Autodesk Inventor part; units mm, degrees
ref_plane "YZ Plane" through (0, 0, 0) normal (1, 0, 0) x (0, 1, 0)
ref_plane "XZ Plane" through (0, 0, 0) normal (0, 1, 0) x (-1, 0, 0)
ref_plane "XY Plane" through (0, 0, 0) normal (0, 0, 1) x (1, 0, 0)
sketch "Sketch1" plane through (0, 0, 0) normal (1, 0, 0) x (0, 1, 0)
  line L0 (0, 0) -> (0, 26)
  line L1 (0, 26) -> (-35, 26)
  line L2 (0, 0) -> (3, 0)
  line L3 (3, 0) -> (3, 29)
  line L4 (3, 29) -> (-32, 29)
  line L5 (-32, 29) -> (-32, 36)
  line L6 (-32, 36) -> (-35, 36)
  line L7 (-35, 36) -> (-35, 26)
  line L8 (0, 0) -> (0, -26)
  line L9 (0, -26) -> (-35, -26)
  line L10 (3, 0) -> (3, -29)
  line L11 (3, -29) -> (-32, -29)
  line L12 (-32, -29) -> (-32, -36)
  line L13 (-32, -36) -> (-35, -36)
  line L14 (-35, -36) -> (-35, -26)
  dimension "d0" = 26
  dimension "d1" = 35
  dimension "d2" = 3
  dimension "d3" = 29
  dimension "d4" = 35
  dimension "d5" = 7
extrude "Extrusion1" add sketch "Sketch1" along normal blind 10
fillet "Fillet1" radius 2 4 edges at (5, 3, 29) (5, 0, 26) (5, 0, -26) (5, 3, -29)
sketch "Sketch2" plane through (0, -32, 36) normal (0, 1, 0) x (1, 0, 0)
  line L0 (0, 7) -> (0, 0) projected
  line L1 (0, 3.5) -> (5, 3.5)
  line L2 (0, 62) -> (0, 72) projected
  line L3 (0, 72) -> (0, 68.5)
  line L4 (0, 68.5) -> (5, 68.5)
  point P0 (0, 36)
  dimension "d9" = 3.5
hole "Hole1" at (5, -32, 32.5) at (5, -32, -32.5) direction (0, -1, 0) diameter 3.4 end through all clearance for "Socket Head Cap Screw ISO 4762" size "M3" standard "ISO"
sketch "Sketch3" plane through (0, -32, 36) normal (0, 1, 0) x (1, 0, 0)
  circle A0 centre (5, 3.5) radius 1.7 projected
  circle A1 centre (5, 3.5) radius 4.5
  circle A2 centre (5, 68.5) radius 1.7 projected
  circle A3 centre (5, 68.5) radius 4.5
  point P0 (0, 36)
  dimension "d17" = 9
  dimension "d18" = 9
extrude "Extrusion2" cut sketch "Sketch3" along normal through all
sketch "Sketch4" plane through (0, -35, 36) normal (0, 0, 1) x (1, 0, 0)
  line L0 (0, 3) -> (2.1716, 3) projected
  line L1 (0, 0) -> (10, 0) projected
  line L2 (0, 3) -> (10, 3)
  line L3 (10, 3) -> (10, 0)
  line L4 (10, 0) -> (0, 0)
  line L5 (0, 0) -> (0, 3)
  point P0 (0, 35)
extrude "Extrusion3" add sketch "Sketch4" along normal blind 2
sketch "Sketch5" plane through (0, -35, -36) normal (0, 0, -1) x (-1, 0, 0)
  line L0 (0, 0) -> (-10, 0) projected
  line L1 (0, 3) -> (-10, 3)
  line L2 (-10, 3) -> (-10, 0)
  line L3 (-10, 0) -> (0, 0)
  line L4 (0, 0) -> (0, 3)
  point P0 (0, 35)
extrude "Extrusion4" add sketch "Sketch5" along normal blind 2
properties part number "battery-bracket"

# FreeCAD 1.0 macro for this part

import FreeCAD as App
import Part
import Sketcher
from FreeCAD import Vector
Q = App.Units.Quantity


def edges_at(feature, points):
    """Names of the edges that pass closest to the given points."""
    edges = feature.Shape.Edges
    near = lambda p: min(range(len(edges)), key=lambda i: edges[i].distToShape(Part.Vertex(*p))[0])
    return sorted({f"Edge{near(p) + 1}" for p in points})


def add_polygon(sketch, points):
    """Adds a closed chain of lines whose ends are joined by coincident constraints."""
    first, n = sketch.GeometryCount, len(points)
    for a, b in zip(points, points[1:] + points[:1]):
        sketch.addGeometry(Part.LineSegment(App.Vector(*a, 0), App.Vector(*b, 0)), False)
    for i in range(n):
        sketch.addConstraint(Sketcher.Constraint("Coincident", first + i, 2, first + (i + 1) % n, 1))

doc = App.newDocument("Part")
body = doc.addObject("PartDesign::Body", "Body")

sketch1 = body.newObject("Sketcher::SketchObject", "Sketch")
sketch1.AttachmentSupport = (doc.getObject("YZ_Plane"), [""])
sketch1.MapMode = "FlatFace"
add_polygon(sketch1, [(0, 26), (0, -26), (-35, -26), (-35, -36), (-32, -36), (-32, -29), (3, -29), (3, 29), (-32, 29), (-32, 36), (-35, 36), (-35, 26)])
sketch1.addConstraint(Sketcher.Constraint("Vertical", 0))
sketch1.addConstraint(Sketcher.Constraint("Horizontal", 1))
sketch1.addConstraint(Sketcher.Constraint("Vertical", 2))
sketch1.addConstraint(Sketcher.Constraint("Horizontal", 3))
sketch1.addConstraint(Sketcher.Constraint("Vertical", 4))
sketch1.addConstraint(Sketcher.Constraint("Horizontal", 5))
sketch1.addConstraint(Sketcher.Constraint("Vertical", 6))
sketch1.addConstraint(Sketcher.Constraint("Horizontal", 7))
sketch1.addConstraint(Sketcher.Constraint("Vertical", 8))
sketch1.addConstraint(Sketcher.Constraint("Horizontal", 9))
sketch1.addConstraint(Sketcher.Constraint("Vertical", 10))
sketch1.addConstraint(Sketcher.Constraint("Horizontal", 11))
sketch1.addConstraint(Sketcher.Constraint("Symmetric", 0, 2, 11, 2, -1, 1))
sketch1.addConstraint(Sketcher.Constraint("Symmetric", 4, 2, 7, 2, -1))
sketch1.addConstraint(Sketcher.Constraint("Symmetric", 2, 2, 9, 2, -1))
sketch1.addConstraint(Sketcher.Constraint("Equal", 1, 5))
sketch1.addConstraint(Sketcher.Constraint("DistanceX", 1, 2, 1, 1, Q("35 mm")))
sketch1.addConstraint(Sketcher.Constraint("DistanceX", 3, 1, 3, 2, Q("3 mm")))
sketch1.addConstraint(Sketcher.Constraint("DistanceY", 4, 1, 4, 2, Q("7 mm")))
sketch1.addConstraint(Sketcher.Constraint("DistanceY", 0, 2, -1, 1, Q("26 mm")))
sketch1.addConstraint(Sketcher.Constraint("DistanceY", 4, 2, -1, 1, Q("29 mm")))
pad1 = body.newObject("PartDesign::Pad", "Pad")
pad1.Profile = sketch1
pad1.Length = 10
doc.recompute()

fillet = body.newObject("PartDesign::Fillet", "Fillet")
fillet.Base = (pad1, edges_at(pad1, [
    (5, 3, 29),
    (5, 0, 26),
    (5, 0, -26),
    (5, 3, -29),
]))
fillet.Radius = 2

sketch2 = body.newObject("Sketcher::SketchObject", "Sketch001")
sketch2.AttachmentSupport = (doc.getObject("XZ_Plane"), [""])
sketch2.MapMode = "FlatFace"
sketch2.AttachmentOffset = App.Placement(Vector(0, 0, 32), App.Rotation())
sketch2.addGeometry(Part.Circle(Vector(5, 32.5, 0), Vector(0, 0, 1), 1.7), False)
sketch2.addGeometry(Part.Circle(Vector(5, -32.5, 0), Vector(0, 0, 1), 1.7), False)
sketch2.addConstraint(Sketcher.Constraint("Equal", 0, 1))
sketch2.addConstraint(Sketcher.Constraint("Symmetric", 0, 3, 1, 3, -1))
sketch2.addConstraint(Sketcher.Constraint("Diameter", 0, Q("3.4 mm")))
sketch2.addConstraint(Sketcher.Constraint("DistanceX", -1, 1, 0, 3, Q("5 mm")))
sketch2.addConstraint(Sketcher.Constraint("DistanceY", 1, 3, 0, 3, Q("65 mm")))
doc.recompute()
hole = body.newObject("PartDesign::Hole", "Hole")
hole.Profile = sketch2
hole.ThreadType = "None"
hole.Diameter = 3.4
hole.DepthType = "ThroughAll"
hole.Reversed = True

sketch3 = body.newObject("Sketcher::SketchObject", "Sketch002")
sketch3.AttachmentSupport = (doc.getObject("XZ_Plane"), [""])
sketch3.MapMode = "FlatFace"
sketch3.AttachmentOffset = App.Placement(Vector(0, 0, 32), App.Rotation())
sketch3.addGeometry(Part.Circle(Vector(5, 32.5, 0), Vector(0, 0, 1), 4.5), False)
sketch3.addGeometry(Part.Circle(Vector(5, 32.5, 0), Vector(0, 0, 1), 1.7), False)
sketch3.addGeometry(Part.Circle(Vector(5, -32.5, 0), Vector(0, 0, 1), 4.5), False)
sketch3.addGeometry(Part.Circle(Vector(5, -32.5, 0), Vector(0, 0, 1), 1.7), False)
sketch3.addConstraint(Sketcher.Constraint("Coincident", 1, 3, 0, 3))
sketch3.addConstraint(Sketcher.Constraint("Coincident", 3, 3, 2, 3))
sketch3.addConstraint(Sketcher.Constraint("Equal", 0, 2))
sketch3.addConstraint(Sketcher.Constraint("Equal", 1, 3))
sketch3.addConstraint(Sketcher.Constraint("Symmetric", 0, 3, 2, 3, -1))
sketch3.addConstraint(Sketcher.Constraint("Diameter", 0, Q("9 mm")))
sketch3.addConstraint(Sketcher.Constraint("Diameter", 1, Q("3.4 mm")))
sketch3.addConstraint(Sketcher.Constraint("DistanceX", -1, 1, 0, 3, Q("5 mm")))
sketch3.addConstraint(Sketcher.Constraint("DistanceY", 2, 3, 0, 3, Q("65 mm")))
pocket1 = body.newObject("PartDesign::Pocket", "Pocket")
pocket1.Profile = sketch3
pocket1.Type = "ThroughAll"

sketch4 = body.newObject("Sketcher::SketchObject", "Sketch003")
sketch4.AttachmentSupport = (doc.getObject("XY_Plane"), [""])
sketch4.MapMode = "FlatFace"
sketch4.AttachmentOffset = App.Placement(Vector(0, 0, 36), App.Rotation())
add_polygon(sketch4, [(10, -32), (0, -32), (0, -35), (10, -35)])
sketch4.addConstraint(Sketcher.Constraint("Horizontal", 0))
sketch4.addConstraint(Sketcher.Constraint("Vertical", 1))
sketch4.addConstraint(Sketcher.Constraint("Horizontal", 2))
sketch4.addConstraint(Sketcher.Constraint("Vertical", 3))
sketch4.addConstraint(Sketcher.Constraint("PointOnObject", 0, 2, -2))
sketch4.addConstraint(Sketcher.Constraint("DistanceX", 0, 2, 0, 1, Q("10 mm")))
sketch4.addConstraint(Sketcher.Constraint("DistanceY", 1, 2, 1, 1, Q("3 mm")))
sketch4.addConstraint(Sketcher.Constraint("DistanceY", 0, 2, -1, 1, Q("32 mm")))
pad2 = body.newObject("PartDesign::Pad", "Pad001")
pad2.Profile = sketch4
pad2.Length = 2

sketch5 = body.newObject("Sketcher::SketchObject", "Sketch004")
sketch5.AttachmentSupport = (doc.getObject("XY_Plane"), [""])
sketch5.MapMode = "FlatFace"
sketch5.AttachmentOffset = App.Placement(Vector(0, 0, -36), App.Rotation())
add_polygon(sketch5, [(10, -35), (0, -35), (0, -32), (10, -32)])
sketch5.addConstraint(Sketcher.Constraint("Horizontal", 0))
sketch5.addConstraint(Sketcher.Constraint("Vertical", 1))
sketch5.addConstraint(Sketcher.Constraint("Horizontal", 2))
sketch5.addConstraint(Sketcher.Constraint("Vertical", 3))
sketch5.addConstraint(Sketcher.Constraint("PointOnObject", 0, 2, -2))
sketch5.addConstraint(Sketcher.Constraint("DistanceX", 0, 2, 0, 1, Q("10 mm")))
sketch5.addConstraint(Sketcher.Constraint("DistanceY", 1, 1, 1, 2, Q("3 mm")))
sketch5.addConstraint(Sketcher.Constraint("DistanceY", 0, 2, -1, 1, Q("35 mm")))
pad3 = body.newObject("PartDesign::Pad", "Pad002")
pad3.Profile = sketch5
pad3.Length = 2
pad3.Reversed = True

doc.recompute()
